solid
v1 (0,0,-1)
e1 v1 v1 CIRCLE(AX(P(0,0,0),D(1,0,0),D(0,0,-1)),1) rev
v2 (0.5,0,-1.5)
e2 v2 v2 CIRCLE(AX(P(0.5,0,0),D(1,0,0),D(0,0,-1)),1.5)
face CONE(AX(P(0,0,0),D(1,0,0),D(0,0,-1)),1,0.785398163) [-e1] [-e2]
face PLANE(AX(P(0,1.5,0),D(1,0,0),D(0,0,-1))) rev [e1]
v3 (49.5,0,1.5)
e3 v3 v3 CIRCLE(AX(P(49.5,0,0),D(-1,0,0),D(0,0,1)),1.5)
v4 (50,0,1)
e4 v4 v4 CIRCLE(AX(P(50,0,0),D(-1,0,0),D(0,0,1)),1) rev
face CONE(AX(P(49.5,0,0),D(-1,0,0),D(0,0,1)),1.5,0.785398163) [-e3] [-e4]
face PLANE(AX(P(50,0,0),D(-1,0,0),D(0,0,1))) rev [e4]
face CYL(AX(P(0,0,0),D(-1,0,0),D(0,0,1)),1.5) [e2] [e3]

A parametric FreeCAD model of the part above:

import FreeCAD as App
import Part
import Sketcher
from FreeCAD import Vector
Q = App.Units.Quantity


def edges_at(feature, points):
    """Names of the edges that pass closest to the given points."""
    edges = feature.Shape.Edges
    near = lambda p: min(range(len(edges)), key=lambda i: edges[i].distToShape(Part.Vertex(*p))[0])
    return sorted({f"Edge{near(p) + 1}" for p in points})

doc = App.newDocument("Part")
params = doc.addObject("Spreadsheet::Sheet", "Params")
for row, (alias, value) in enumerate([
    ("sketch1_width", "50 mm"),
    ("sketch1_height", "1.5 mm"),
    ("revolution_angle", "360 deg"),
    ("chamfer_size", "0.5 mm"),
], start=1):
    params.set(f"A{row}", alias)
    params.set(f"B{row}", "=" + value)
    params.setAlias(f"B{row}", alias)

body = doc.addObject("PartDesign::Body", "Body")

# Sketch on XY plane
sketch1 = body.newObject("Sketcher::SketchObject", "Sketch")
sketch1.AttachmentSupport = (doc.getObject("XY_Plane"), [""])
sketch1.MapMode = "FlatFace"
sketch1.addGeometry([
    Part.LineSegment(Vector(0, 1.5, 0), Vector(0, 0, 0)),
    Part.LineSegment(Vector(0, 0, 0), Vector(50, 0, 0)),
    Part.LineSegment(Vector(50, 0, 0), Vector(50, 1.5, 0)),
    Part.LineSegment(Vector(50, 1.5, 0), Vector(0, 1.5, 0)),
], False)
sketch1.addConstraint([
    Sketcher.Constraint("Coincident", 0, 2, 1, 1),
    Sketcher.Constraint("Coincident", 1, 2, 2, 1),
    Sketcher.Constraint("Coincident", 2, 2, 3, 1),
    Sketcher.Constraint("Coincident", 3, 2, 0, 1),
    Sketcher.Constraint("Vertical", 0),
    Sketcher.Constraint("Horizontal", 1),
    Sketcher.Constraint("Vertical", 2),
    Sketcher.Constraint("Horizontal", 3),
    Sketcher.Constraint("Coincident", 0, 2, -1, 1),
    Sketcher.Constraint("DistanceX", 1, 1, 1, 2, Q("50 mm")),
    Sketcher.Constraint("DistanceY", 0, 2, 0, 1, Q("1.5 mm")),
])
sketch1.setExpression("Constraints[9]", "Params.sketch1_width")
sketch1.setExpression("Constraints[10]", "Params.sketch1_height")
revolution = body.newObject("PartDesign::Revolution", "Revolution")
revolution.Profile = sketch1
revolution.ReferenceAxis = (sketch1, ["H_Axis"])
revolution.setExpression("Angle", "Params.revolution_angle")
doc.recompute()

chamfer = body.newObject("PartDesign::Chamfer", "Chamfer")
chamfer.Base = (revolution, edges_at(revolution, [(0, -1.5, 0), (50, -1.5, 0)]))
chamfer.setExpression("Size", "Params.chamfer_size")

doc.recompute()
